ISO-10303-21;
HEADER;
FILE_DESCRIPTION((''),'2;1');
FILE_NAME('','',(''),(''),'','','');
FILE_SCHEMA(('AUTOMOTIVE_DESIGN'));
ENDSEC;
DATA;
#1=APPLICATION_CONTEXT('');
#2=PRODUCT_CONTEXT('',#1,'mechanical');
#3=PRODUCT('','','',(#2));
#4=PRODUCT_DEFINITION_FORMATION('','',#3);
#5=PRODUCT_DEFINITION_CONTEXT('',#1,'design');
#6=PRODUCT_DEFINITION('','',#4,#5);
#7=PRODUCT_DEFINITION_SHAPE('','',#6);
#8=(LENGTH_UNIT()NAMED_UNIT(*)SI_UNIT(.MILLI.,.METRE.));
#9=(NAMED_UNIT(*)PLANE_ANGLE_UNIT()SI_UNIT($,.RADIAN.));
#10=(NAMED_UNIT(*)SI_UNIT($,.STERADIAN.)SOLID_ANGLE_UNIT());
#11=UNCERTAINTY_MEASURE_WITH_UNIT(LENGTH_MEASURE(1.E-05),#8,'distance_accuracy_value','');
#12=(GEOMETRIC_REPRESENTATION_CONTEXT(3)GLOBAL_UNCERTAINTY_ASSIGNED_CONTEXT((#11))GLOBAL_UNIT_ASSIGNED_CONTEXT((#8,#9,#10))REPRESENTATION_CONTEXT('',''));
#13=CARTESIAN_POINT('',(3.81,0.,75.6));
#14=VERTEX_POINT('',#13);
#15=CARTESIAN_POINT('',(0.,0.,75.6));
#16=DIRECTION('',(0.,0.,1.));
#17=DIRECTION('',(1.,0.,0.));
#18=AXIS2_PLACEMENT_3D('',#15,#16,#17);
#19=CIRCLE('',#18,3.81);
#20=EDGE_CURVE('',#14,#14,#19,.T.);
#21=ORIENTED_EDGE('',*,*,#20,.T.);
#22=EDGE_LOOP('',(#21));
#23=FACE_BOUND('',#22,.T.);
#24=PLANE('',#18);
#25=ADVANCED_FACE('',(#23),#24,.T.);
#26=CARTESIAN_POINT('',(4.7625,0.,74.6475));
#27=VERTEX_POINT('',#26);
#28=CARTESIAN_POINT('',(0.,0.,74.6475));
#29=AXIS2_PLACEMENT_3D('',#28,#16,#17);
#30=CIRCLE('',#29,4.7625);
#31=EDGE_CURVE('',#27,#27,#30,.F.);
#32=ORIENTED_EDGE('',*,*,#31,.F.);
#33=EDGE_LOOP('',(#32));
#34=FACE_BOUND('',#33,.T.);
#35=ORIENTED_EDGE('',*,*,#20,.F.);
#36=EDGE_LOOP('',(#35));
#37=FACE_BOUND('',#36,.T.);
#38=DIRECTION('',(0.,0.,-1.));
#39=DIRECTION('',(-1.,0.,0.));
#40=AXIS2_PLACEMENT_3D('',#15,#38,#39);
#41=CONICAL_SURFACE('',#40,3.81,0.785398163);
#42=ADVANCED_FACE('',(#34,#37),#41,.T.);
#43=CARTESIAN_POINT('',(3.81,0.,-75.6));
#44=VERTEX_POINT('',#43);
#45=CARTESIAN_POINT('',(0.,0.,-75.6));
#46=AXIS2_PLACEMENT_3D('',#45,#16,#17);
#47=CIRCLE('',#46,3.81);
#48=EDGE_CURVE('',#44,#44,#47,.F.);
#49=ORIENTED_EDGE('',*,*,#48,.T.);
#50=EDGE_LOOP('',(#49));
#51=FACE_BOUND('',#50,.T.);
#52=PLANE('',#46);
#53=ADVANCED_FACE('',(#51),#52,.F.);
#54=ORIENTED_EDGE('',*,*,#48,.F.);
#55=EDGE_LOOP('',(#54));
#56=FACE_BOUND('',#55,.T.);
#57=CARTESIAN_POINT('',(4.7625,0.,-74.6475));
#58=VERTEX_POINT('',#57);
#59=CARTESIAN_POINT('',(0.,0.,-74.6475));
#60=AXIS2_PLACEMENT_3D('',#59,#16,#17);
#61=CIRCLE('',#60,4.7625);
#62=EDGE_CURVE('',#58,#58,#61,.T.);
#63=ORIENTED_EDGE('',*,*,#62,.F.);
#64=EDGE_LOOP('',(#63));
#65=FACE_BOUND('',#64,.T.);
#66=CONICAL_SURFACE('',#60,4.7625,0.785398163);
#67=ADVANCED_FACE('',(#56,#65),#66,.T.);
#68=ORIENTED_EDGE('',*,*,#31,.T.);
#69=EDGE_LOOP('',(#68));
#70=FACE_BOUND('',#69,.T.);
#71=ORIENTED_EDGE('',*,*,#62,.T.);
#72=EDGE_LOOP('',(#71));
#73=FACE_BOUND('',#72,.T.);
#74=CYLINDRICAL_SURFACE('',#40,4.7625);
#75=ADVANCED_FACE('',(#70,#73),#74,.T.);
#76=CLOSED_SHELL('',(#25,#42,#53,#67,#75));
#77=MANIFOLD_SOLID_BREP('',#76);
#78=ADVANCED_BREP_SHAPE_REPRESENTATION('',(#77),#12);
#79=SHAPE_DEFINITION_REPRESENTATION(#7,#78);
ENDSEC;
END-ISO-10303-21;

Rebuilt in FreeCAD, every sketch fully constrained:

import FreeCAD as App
import Part
import Sketcher

V = App.Vector
Q = App.Units.Quantity


def edges_at(feature, points):
    """Names of the edges that pass closest to the given points."""
    edges = feature.Shape.Edges
    near = lambda p: min(range(len(edges)), key=lambda i: edges[i].distToShape(Part.Vertex(*p))[0])
    return sorted({f"Edge{near(p) + 1}" for p in points})

doc = App.newDocument("Part")
body = doc.addObject("PartDesign::Body", "Body")

# Sketch on XY plane
sketch1 = doc.addObject("Sketcher::SketchObject", "Sketch")
body.addObject(sketch1)
sketch1.AttachmentSupport = (doc.XY_Plane, [""])
sketch1.MapMode = "FlatFace"
sketch1.addGeometry(Part.Circle(V(0, 0, 0), V(0, 0, 1), 4.8), False)
sketch1.addConstraint([
    Sketcher.Constraint("Coincident", 0, 3, -1, 1),
    Sketcher.Constraint("Diameter", 0, Q("9.525 mm")),
])
pad1 = doc.addObject("PartDesign::Pad", "Pad")
body.addObject(pad1)
pad1.Profile = sketch1
pad1.Length = 151.2
pad1.Midplane = True
doc.recompute()

chamfer = doc.addObject("PartDesign::Chamfer", "Chamfer")
body.addObject(chamfer)
chamfer.Base = (pad1, edges_at(pad1, [(-4.763, 0, -75.6), (-4.763, 0, 75.6)]))
chamfer.Size = 0.9525

doc.recompute()
